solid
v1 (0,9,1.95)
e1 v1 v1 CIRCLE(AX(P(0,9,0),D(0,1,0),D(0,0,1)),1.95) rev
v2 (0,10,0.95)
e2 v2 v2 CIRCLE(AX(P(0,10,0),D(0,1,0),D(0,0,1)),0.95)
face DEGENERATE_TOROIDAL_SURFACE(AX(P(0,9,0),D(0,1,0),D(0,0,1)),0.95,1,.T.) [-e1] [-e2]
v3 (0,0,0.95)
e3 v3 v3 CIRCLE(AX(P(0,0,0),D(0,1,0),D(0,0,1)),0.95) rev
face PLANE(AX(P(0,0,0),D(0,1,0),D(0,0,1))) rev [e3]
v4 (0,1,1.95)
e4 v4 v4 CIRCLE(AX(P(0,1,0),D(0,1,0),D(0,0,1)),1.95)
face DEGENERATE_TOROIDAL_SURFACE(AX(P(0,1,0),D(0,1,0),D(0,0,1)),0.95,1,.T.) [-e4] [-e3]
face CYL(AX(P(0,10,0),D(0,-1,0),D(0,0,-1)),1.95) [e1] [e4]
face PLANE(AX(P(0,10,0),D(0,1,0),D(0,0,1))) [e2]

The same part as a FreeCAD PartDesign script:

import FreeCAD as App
import Part
import Sketcher

V = App.Vector
Q = App.Units.Quantity


def edges_at(feature, points):
    """Names of the edges that pass closest to the given points."""
    edges = feature.Shape.Edges
    near = lambda p: min(range(len(edges)), key=lambda i: edges[i].distToShape(Part.Vertex(*p))[0])
    return sorted({f"Edge{near(p) + 1}" for p in points})

doc = App.newDocument("Part")
body = doc.addObject("PartDesign::Body", "Body")

sketch1 = body.newObject("Sketcher::SketchObject", "Sketch")
sketch1.AttachmentSupport = (doc.getObject("XZ_Plane"), [""])
sketch1.MapMode = "FlatFace"
sketch1.addGeometry(Part.Circle(V(0, 0, 0), V(0, 0, 1), 1.9), False)
sketch1.addConstraint(Sketcher.Constraint("Coincident", 0, 3, -1, 1))
sketch1.addConstraint(Sketcher.Constraint("Diameter", 0, Q("3.9 mm")))
pad1 = body.newObject("PartDesign::Pad", "Pad")
pad1.Profile = sketch1
pad1.Length = 10
pad1.Reversed = True
doc.recompute()

fillet = body.newObject("PartDesign::Fillet", "Fillet")
fillet.Base = (pad1, edges_at(pad1, [(0, 0, -1.95), (0, 10, -1.95)]))
fillet.Radius = 1

doc.recompute()
